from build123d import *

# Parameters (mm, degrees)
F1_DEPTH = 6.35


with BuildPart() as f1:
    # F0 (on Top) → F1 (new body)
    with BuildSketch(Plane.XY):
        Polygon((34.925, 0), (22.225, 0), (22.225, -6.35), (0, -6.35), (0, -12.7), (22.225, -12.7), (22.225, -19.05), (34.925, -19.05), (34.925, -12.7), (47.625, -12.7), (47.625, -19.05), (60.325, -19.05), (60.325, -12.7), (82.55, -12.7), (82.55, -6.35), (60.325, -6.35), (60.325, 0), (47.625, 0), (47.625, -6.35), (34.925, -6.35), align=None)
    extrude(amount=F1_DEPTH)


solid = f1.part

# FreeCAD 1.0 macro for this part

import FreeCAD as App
import Part
import Sketcher

V = App.Vector
Q = App.Units.Quantity

doc = App.newDocument("Part")
body = doc.addObject("PartDesign::Body", "Body")

sketch1 = body.newObject("Sketcher::SketchObject", "Sketch")
sketch1.AttachmentSupport = (doc.getObject("XY_Plane"), [""])
sketch1.MapMode = "FlatFace"
sketch1.addGeometry([
    Part.LineSegment(V(34.925, 0, 0), V(22.225, 0, 0)),
    Part.LineSegment(V(22.225, 0, 0), V(22.225, -6.35, 0)),
    Part.LineSegment(V(22.225, -6.35, 0), V(0, -6.35, 0)),
    Part.LineSegment(V(0, -6.35, 0), V(0, -12.7, 0)),
    Part.LineSegment(V(0, -12.7, 0), V(22.225, -12.7, 0)),
    Part.LineSegment(V(22.225, -12.7, 0), V(22.225, -19.05, 0)),
    Part.LineSegment(V(22.225, -19.05, 0), V(34.925, -19.05, 0)),
    Part.LineSegment(V(34.925, -19.05, 0), V(34.925, -12.7, 0)),
    Part.LineSegment(V(34.925, -12.7, 0), V(47.625, -12.7, 0)),
    Part.LineSegment(V(47.625, -12.7, 0), V(47.625, -19.05, 0)),
    Part.LineSegment(V(47.625, -19.05, 0), V(60.325, -19.05, 0)),
    Part.LineSegment(V(60.325, -19.05, 0), V(60.325, -12.7, 0)),
    Part.LineSegment(V(60.325, -12.7, 0), V(82.55, -12.7, 0)),
    Part.LineSegment(V(82.55, -12.7, 0), V(82.55, -6.35, 0)),
    Part.LineSegment(V(82.55, -6.35, 0), V(60.325, -6.35, 0)),
    Part.LineSegment(V(60.325, -6.35, 0), V(60.325, 0, 0)),
    Part.LineSegment(V(60.325, 0, 0), V(47.625, 0, 0)),
    Part.LineSegment(V(47.625, 0, 0), V(47.625, -6.35, 0)),
    Part.LineSegment(V(47.625, -6.35, 0), V(34.925, -6.35, 0)),
    Part.LineSegment(V(34.925, -6.35, 0), V(34.925, 0, 0)),
], False)
sketch1.addConstraint([
    Sketcher.Constraint("Coincident", 0, 2, 1, 1),
    Sketcher.Constraint("Coincident", 1, 2, 2, 1),
    Sketcher.Constraint("Coincident", 2, 2, 3, 1),
    Sketcher.Constraint("Coincident", 3, 2, 4, 1),
    Sketcher.Constraint("Coincident", 4, 2, 5, 1),
    Sketcher.Constraint("Coincident", 5, 2, 6, 1),
    Sketcher.Constraint("Coincident", 6, 2, 7, 1),
    Sketcher.Constraint("Coincident", 7, 2, 8, 1),
    Sketcher.Constraint("Coincident", 8, 2, 9, 1),
    Sketcher.Constraint("Coincident", 9, 2, 10, 1),
    Sketcher.Constraint("Coincident", 10, 2, 11, 1),
    Sketcher.Constraint("Coincident", 11, 2, 12, 1),
    Sketcher.Constraint("Coincident", 12, 2, 13, 1),
    Sketcher.Constraint("Coincident", 13, 2, 14, 1),
    Sketcher.Constraint("Coincident", 14, 2, 15, 1),
    Sketcher.Constraint("Coincident", 15, 2, 16, 1),
    Sketcher.Constraint("Coincident", 16, 2, 17, 1),
    Sketcher.Constraint("Coincident", 17, 2, 18, 1),
    Sketcher.Constraint("Coincident", 18, 2, 19, 1),
    Sketcher.Constraint("Coincident", 19, 2, 0, 1),
    Sketcher.Constraint("Horizontal", 0),
    Sketcher.Constraint("Vertical", 1),
    Sketcher.Constraint("Horizontal", 2),
    Sketcher.Constraint("Vertical", 3),
    Sketcher.Constraint("Horizontal", 4),
    Sketcher.Constraint("Vertical", 5),
    Sketcher.Constraint("Horizontal", 6),
    Sketcher.Constraint("Vertical", 7),
    Sketcher.Constraint("Horizontal", 8),
    Sketcher.Constraint("Vertical", 9),
    Sketcher.Constraint("Horizontal", 10),
    Sketcher.Constraint("Vertical", 11),
    Sketcher.Constraint("Horizontal", 12),
    Sketcher.Constraint("Vertical", 13),
    Sketcher.Constraint("Horizontal", 14),
    Sketcher.Constraint("Vertical", 15),
    Sketcher.Constraint("Horizontal", 16),
    Sketcher.Constraint("Vertical", 17),
    Sketcher.Constraint("Horizontal", 18),
    Sketcher.Constraint("Vertical", 19),
    Sketcher.Constraint("PointOnObject", 0, 2, -1),
    Sketcher.Constraint("PointOnObject", 2, 2, -2),
    Sketcher.Constraint("PointOnObject", 15, 2, -1),
    Sketcher.Constraint("Horizontal", 4, 2, 7, 2),
    Sketcher.Constraint("Horizontal", 6, 2, 9, 2),
    Sketcher.Constraint("Horizontal", 8, 2, 11, 2),
    Sketcher.Constraint("Horizontal", 2, 2, 13, 2),
    Sketcher.Constraint("Horizontal", 14, 2, 17, 2),
    Sketcher.Constraint("Vertical", 1, 2, 4, 2),
    Sketcher.Constraint("Vertical", 11, 2, 14, 2),
    Sketcher.Constraint("Vertical", 9, 2, 16, 2),
    Sketcher.Constraint("Vertical", 7, 2, 18, 2),
    Sketcher.Constraint("Equal", 6, 8),
    Sketcher.Constraint("Equal", 8, 10),
    Sketcher.Constraint("Equal", 4, 12),
    Sketcher.Constraint("Equal", 1, 3),
    Sketcher.Constraint("Equal", 3, 5),
    Sketcher.Constraint("DistanceX", 0, 2, 0, 1, Q("0.5 in")),
    Sketcher.Constraint("DistanceY", 1, 2, 1, 1, Q("0.25 in")),
    Sketcher.Constraint("DistanceX", 2, 2, 2, 1, Q("0.875 in")),
])
pad1 = body.newObject("PartDesign::Pad", "Pad")
pad1.Profile = sketch1
pad1.Length = Q("0.25 in")

doc.recompute()
